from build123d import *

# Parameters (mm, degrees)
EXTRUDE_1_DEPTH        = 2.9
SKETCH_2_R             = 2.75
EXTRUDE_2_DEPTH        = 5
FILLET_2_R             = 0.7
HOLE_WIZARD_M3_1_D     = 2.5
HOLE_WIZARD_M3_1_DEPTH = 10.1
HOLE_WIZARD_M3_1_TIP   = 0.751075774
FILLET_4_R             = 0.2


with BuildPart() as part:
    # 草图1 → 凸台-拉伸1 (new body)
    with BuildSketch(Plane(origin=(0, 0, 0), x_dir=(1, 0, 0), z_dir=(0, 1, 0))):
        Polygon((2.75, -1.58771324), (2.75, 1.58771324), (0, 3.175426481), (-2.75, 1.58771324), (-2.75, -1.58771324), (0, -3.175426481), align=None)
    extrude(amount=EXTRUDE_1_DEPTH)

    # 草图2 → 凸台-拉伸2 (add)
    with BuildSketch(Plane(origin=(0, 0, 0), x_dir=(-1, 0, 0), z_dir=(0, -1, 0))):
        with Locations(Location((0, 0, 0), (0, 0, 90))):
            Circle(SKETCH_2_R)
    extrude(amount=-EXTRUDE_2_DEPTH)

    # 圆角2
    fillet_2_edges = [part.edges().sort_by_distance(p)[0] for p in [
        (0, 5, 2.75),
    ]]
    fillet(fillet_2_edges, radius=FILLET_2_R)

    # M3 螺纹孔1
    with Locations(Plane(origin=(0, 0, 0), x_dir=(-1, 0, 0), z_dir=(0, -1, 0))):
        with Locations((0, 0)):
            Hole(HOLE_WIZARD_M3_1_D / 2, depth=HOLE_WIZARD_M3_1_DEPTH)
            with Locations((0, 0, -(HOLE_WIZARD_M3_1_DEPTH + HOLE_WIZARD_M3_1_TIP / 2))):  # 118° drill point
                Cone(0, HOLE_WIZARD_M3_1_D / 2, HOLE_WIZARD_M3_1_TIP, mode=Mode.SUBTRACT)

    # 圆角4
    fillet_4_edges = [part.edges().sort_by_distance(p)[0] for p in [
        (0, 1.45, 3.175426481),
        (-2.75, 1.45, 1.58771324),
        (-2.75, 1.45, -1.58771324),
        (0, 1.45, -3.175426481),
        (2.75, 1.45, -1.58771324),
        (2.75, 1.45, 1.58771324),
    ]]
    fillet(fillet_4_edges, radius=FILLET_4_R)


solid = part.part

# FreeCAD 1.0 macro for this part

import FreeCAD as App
import Part
import Sketcher
from FreeCAD import Vector
Q = App.Units.Quantity


def edges_at(feature, points):
    """Names of the edges that pass closest to the given points."""
    edges = feature.Shape.Edges
    near = lambda p: min(range(len(edges)), key=lambda i: edges[i].distToShape(Part.Vertex(*p))[0])
    return sorted({f"Edge{near(p) + 1}" for p in points})


def add_polygon(sketch, points):
    """Adds a closed chain of lines whose ends are joined by coincident constraints."""
    first, n = sketch.GeometryCount, len(points)
    for a, b in zip(points, points[1:] + points[:1]):
        sketch.addGeometry(Part.LineSegment(App.Vector(*a, 0), App.Vector(*b, 0)), False)
    for i in range(n):
        sketch.addConstraint(Sketcher.Constraint("Coincident", first + i, 2, first + (i + 1) % n, 1))

doc = App.newDocument("Part")
params = doc.addObject("Spreadsheet::Sheet", "Params")
for row, (alias, value) in enumerate([
    ("pad1_length", "2.9 mm"),
    ("sketch2_diameter", "5.5 mm"),
    ("pad2_length", "5 mm"),
    ("fillet_radius", "0.7 mm"),
    ("sketch3_diameter", "2.5 mm"),
    ("hole_diameter", "2.5 mm"),
    ("hole_depth", "10.1 mm"),
    ("fillet2_radius", "0.2 mm"),
], start=1):
    params.set(f"A{row}", alias)
    params.set(f"B{row}", "=" + value)
    params.setAlias(f"B{row}", alias)

body = doc.addObject("PartDesign::Body", "Body")

# Sketch on XZ plane
sketch1 = body.newObject("Sketcher::SketchObject", "Sketch")
sketch1.AttachmentSupport = (doc.getObject("XZ_Plane"), [""])
sketch1.MapMode = "FlatFace"
add_polygon(sketch1, [(2.8, 1.6), (2.8, -1.6), (0, -3.2), (-2.8, -1.6), (-2.8, 1.6), (0, 3.2)])  # lines 0-5
sketch1.addConstraint([
    Sketcher.Constraint("Vertical", 0),
    Sketcher.Constraint("Vertical", 3),
    Sketcher.Constraint("Symmetric", 0, 2, 3, 2, -1, 1),
    Sketcher.Constraint("Symmetric", 1, 2, 4, 2, -1, 1),
    Sketcher.Constraint("PointOnObject", 1, 2, -2),
    Sketcher.Constraint("Parallel", 2, 5),
    Sketcher.Constraint("Horizontal", 0, 2, 2, 2),
    Sketcher.Constraint("Angle", 1, Q("-150 deg")),
    Sketcher.Constraint("DistanceX", 2, 2, 0, 2, Q("5.5 mm")),
    Sketcher.Constraint("DistanceY", 0, 2, 0, 1, Q("3.175426 mm")),
])
pad1 = body.newObject("PartDesign::Pad", "Pad")
pad1.Profile = sketch1
pad1.setExpression("Length", "Params.pad1_length")
pad1.Reversed = True

# Sketch on XZ plane
sketch2 = body.newObject("Sketcher::SketchObject", "Sketch001")
sketch2.AttachmentSupport = (doc.getObject("XZ_Plane"), [""])
sketch2.MapMode = "FlatFace"
sketch2.addGeometry(Part.Circle(Vector(0, 0, 0), Vector(0, 0, 1), 2.8), False)
sketch2.addConstraint([
    Sketcher.Constraint("Coincident", 0, 3, -1, 1),
    Sketcher.Constraint("Diameter", 0, Q("5.5 mm")),
])
sketch2.setExpression("Constraints[1]", "Params.sketch2_diameter")
pad2 = body.newObject("PartDesign::Pad", "Pad001")
pad2.Profile = sketch2
pad2.setExpression("Length", "Params.pad2_length")
pad2.Reversed = True
doc.recompute()

fillet = body.newObject("PartDesign::Fillet", "Fillet")
fillet.Base = (pad2, edges_at(pad2, [(0, 5, 2.75)]))
fillet.setExpression("Radius", "Params.fillet_radius")

# Sketch on XZ plane
sketch3 = body.newObject("Sketcher::SketchObject", "Sketch002")
sketch3.AttachmentSupport = (doc.getObject("XZ_Plane"), [""])
sketch3.MapMode = "FlatFace"
sketch3.addGeometry(Part.Circle(Vector(0, 0, 0), Vector(0, 0, 1), 1.2), False)
sketch3.addConstraint([
    Sketcher.Constraint("Coincident", 0, 3, -1, 1),
    Sketcher.Constraint("Diameter", 0, Q("2.5 mm")),
])
sketch3.setExpression("Constraints[1]", "Params.sketch3_diameter")
doc.recompute()
hole = body.newObject("PartDesign::Hole", "Hole")
hole.Profile = sketch3
hole.ThreadType = "None"
hole.setExpression("Diameter", "Params.hole_diameter")
hole.DepthType = "Dimension"
hole.setExpression("Depth", "Params.hole_depth")
hole.DrillPoint = "Angled"
hole.DrillPointAngle = 118
doc.recompute()

fillet2 = body.newObject("PartDesign::Fillet", "Fillet001")
fillet2.Base = (hole, edges_at(hole, [
    (0, 1.45, 3.175),
    (-2.75, 1.45, 1.588),
    (-2.75, 1.45, -1.588),
    (0, 1.45, -3.175),
    (2.75, 1.45, -1.588),
    (2.75, 1.45, 1.588),
]))
fillet2.setExpression("Radius", "Params.fillet2_radius")

doc.recompute()
